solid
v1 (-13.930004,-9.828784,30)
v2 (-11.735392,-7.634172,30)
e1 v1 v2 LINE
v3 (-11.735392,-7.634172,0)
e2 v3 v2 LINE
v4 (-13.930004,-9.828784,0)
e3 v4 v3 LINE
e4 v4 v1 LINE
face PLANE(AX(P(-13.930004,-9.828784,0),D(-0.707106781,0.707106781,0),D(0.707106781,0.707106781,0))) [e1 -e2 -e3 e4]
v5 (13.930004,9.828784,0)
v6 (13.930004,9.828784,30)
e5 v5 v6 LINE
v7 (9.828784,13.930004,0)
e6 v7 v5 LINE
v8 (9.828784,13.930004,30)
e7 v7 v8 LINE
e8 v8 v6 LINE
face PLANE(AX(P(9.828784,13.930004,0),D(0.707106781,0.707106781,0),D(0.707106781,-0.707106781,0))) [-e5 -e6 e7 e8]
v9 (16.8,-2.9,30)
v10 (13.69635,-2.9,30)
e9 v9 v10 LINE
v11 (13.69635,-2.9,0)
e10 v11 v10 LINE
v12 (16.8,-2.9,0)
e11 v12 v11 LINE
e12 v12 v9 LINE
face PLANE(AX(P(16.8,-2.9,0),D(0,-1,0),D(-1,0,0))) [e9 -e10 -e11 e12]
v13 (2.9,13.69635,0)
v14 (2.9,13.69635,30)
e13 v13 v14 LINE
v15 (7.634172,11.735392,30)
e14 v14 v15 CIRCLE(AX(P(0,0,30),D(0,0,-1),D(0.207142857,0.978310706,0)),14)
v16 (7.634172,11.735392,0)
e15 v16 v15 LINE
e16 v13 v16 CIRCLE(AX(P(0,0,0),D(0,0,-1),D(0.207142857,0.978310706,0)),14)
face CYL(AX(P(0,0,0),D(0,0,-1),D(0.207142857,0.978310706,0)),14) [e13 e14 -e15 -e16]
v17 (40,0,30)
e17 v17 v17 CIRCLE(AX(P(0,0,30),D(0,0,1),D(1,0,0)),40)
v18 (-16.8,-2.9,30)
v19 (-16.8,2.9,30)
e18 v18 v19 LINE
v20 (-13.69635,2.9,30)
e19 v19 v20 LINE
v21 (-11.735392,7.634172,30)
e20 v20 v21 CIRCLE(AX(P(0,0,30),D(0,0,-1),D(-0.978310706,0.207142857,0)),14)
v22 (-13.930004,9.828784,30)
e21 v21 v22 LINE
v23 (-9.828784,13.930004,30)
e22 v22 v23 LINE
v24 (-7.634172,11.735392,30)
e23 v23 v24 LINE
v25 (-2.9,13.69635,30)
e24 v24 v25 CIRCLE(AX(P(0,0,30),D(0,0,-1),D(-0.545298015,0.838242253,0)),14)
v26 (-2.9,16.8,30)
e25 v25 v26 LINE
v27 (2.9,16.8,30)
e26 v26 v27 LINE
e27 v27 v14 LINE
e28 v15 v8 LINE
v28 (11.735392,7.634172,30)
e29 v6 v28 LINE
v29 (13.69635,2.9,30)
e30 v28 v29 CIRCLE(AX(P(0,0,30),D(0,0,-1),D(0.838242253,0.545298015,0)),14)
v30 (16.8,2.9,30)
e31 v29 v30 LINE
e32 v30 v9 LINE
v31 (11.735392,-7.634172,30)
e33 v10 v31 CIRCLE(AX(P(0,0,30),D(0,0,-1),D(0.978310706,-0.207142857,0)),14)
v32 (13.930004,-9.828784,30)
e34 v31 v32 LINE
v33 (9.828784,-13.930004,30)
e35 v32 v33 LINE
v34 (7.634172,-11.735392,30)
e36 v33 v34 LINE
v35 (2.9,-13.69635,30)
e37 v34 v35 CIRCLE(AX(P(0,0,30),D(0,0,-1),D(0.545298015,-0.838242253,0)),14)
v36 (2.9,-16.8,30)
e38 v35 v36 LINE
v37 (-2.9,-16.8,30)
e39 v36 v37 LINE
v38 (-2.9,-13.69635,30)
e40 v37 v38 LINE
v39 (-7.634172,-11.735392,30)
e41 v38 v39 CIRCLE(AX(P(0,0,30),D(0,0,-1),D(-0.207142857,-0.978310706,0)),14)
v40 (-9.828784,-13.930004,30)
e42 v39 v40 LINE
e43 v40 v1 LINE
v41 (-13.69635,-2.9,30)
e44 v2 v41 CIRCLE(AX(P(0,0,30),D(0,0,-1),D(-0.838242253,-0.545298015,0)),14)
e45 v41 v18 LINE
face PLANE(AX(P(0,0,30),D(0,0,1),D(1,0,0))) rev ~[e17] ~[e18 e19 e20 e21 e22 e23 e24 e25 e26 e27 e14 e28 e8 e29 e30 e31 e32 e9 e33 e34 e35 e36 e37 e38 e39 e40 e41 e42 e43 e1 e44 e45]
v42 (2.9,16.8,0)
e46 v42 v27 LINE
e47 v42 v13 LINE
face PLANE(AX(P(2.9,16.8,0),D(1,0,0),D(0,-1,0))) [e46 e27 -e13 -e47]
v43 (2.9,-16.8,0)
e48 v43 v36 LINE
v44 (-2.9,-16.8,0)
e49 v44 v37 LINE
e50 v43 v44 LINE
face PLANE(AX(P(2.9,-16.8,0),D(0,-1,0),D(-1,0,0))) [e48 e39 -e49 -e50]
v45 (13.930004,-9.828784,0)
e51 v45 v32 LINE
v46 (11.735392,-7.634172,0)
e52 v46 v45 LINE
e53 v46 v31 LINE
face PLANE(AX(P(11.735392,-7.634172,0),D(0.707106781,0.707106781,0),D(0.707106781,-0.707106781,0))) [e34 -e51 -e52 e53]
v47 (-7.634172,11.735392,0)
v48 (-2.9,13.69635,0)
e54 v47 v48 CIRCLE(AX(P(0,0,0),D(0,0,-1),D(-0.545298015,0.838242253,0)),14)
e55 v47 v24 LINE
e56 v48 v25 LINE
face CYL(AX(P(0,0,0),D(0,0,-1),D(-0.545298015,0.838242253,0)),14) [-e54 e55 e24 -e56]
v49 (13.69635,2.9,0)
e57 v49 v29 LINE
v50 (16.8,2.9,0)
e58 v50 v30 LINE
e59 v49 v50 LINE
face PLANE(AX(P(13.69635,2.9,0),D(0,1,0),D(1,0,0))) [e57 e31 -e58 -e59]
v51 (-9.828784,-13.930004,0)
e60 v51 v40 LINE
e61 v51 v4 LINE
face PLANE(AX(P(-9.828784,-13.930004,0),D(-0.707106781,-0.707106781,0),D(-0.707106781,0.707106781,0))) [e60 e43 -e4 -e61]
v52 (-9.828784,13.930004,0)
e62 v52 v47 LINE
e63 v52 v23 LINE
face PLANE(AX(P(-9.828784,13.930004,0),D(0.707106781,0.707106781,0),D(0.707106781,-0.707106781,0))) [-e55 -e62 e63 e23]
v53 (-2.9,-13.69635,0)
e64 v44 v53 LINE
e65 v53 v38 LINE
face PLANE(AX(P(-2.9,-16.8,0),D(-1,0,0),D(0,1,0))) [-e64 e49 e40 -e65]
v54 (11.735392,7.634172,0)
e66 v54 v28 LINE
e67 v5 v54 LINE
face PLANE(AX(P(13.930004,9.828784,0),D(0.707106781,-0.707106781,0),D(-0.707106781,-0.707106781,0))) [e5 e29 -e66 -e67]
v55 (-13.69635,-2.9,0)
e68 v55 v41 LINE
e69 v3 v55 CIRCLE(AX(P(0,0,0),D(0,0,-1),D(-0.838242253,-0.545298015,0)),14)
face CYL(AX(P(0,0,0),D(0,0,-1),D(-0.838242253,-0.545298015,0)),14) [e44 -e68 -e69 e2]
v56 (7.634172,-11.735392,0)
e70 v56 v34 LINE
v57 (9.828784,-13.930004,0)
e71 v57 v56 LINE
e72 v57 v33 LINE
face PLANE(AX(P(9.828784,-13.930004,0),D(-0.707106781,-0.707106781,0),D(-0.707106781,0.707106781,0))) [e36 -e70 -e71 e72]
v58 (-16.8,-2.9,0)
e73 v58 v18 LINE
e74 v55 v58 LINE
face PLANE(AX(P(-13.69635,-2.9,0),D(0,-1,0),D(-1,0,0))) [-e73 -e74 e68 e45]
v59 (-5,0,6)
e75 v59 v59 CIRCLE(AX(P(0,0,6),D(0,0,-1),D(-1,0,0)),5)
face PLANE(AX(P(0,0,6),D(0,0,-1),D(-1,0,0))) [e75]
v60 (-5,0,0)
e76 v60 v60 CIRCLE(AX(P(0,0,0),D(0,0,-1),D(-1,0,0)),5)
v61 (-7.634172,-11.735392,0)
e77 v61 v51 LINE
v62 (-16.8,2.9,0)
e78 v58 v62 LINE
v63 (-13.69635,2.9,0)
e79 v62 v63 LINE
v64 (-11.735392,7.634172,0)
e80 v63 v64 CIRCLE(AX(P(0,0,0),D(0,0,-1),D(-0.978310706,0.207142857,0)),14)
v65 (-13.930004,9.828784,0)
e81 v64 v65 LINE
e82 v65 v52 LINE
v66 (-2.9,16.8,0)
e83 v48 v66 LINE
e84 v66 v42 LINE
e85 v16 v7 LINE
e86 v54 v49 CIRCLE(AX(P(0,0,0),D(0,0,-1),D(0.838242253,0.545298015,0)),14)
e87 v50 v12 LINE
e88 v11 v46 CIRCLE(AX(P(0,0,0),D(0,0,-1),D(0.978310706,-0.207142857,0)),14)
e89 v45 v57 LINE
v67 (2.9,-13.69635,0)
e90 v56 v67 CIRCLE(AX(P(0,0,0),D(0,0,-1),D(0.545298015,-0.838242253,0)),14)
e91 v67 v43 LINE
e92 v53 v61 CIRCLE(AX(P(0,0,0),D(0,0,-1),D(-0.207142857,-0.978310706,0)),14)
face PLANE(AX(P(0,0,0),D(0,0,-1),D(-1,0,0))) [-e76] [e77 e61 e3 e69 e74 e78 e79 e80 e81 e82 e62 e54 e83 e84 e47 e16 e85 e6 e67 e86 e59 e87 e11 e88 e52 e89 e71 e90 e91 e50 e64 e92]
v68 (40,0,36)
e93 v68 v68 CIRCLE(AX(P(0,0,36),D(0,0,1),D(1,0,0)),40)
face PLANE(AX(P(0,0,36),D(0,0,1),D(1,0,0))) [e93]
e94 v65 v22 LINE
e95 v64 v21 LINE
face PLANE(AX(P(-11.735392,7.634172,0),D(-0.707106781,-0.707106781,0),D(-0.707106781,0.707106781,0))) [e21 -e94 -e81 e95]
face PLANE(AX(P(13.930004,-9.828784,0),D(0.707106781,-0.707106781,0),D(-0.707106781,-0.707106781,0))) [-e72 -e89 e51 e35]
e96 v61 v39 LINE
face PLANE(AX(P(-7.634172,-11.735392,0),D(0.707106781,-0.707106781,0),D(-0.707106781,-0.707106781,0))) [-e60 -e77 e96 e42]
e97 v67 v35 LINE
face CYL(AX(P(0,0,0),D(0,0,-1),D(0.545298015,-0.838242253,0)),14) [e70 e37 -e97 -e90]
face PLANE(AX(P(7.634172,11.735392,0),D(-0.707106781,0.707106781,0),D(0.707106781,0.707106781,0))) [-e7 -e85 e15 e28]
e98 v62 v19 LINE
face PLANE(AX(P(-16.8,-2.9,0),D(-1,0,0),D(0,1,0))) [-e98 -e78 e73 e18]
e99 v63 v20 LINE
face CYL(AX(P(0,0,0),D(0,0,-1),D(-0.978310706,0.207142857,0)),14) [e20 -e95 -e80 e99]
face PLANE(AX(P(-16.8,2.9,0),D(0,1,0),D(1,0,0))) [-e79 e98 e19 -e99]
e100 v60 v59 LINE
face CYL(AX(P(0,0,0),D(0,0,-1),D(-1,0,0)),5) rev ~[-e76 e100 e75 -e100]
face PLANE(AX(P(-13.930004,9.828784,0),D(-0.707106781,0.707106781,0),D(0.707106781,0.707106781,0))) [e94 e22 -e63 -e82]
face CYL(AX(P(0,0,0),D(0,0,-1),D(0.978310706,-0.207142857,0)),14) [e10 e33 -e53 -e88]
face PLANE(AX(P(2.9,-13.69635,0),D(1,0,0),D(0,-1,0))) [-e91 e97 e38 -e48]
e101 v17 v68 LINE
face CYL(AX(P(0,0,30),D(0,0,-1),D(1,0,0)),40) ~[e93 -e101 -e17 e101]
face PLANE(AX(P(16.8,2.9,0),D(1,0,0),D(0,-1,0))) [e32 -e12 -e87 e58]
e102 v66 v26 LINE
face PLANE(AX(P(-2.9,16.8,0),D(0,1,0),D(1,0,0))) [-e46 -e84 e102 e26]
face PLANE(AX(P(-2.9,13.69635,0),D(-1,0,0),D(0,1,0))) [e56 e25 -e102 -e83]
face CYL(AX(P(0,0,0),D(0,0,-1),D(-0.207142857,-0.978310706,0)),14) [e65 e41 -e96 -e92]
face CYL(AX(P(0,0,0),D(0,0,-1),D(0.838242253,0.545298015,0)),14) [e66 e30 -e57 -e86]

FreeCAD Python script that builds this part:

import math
import FreeCAD as App
import Part
import Sketcher

doc = App.newDocument("Part")
body = doc.addObject("PartDesign::Body", "Body")

sketch1 = doc.addObject("Sketcher::SketchObject", "Sketch")
body.addObject(sketch1)
sketch1.AttachmentSupport = (doc.XY_Plane, [""])
sketch1.MapMode = "FlatFace"
sketch1.addGeometry([
    Part.LineSegment(App.Vector(-2.9, 16.8, 0), App.Vector(-2.9, 13.7, 0)),
    Part.ArcOfCircle(Part.Circle(App.Vector(0, 0, 0), App.Vector(0, 0, 1), 14), math.radians(102), math.radians(123)),
    Part.LineSegment(App.Vector(-7.6, 11.7, 0), App.Vector(-9.8, 13.9, 0)),
    Part.LineSegment(App.Vector(-9.8, 13.9, 0), App.Vector(-13.9, 9.8, 0)),
    Part.LineSegment(App.Vector(-13.9, 9.8, 0), App.Vector(-11.7, 7.6, 0)),
    Part.ArcOfCircle(Part.Circle(App.Vector(0, 0, 0), App.Vector(0, 0, 1), 14), math.radians(147), math.radians(168)),
    Part.LineSegment(App.Vector(-13.7, 2.9, 0), App.Vector(-16.8, 2.9, 0)),
    Part.LineSegment(App.Vector(-16.8, 2.9, 0), App.Vector(-16.8, -2.9, 0)),
    Part.LineSegment(App.Vector(-16.8, -2.9, 0), App.Vector(-13.7, -2.9, 0)),
    Part.ArcOfCircle(Part.Circle(App.Vector(0, 0, 0), App.Vector(0, 0, 1), 14), math.radians(-168), math.radians(-147)),
    Part.LineSegment(App.Vector(-11.7, -7.6, 0), App.Vector(-13.9, -9.8, 0)),
    Part.LineSegment(App.Vector(-13.9, -9.8, 0), App.Vector(-9.8, -13.9, 0)),
    Part.LineSegment(App.Vector(-9.8, -13.9, 0), App.Vector(-7.6, -11.7, 0)),
    Part.ArcOfCircle(Part.Circle(App.Vector(0, 0, 0), App.Vector(0, 0, 1), 14), math.radians(-123), math.radians(-102)),
    Part.LineSegment(App.Vector(-2.9, -13.7, 0), App.Vector(-2.9, -16.8, 0)),
    Part.LineSegment(App.Vector(-2.9, -16.8, 0), App.Vector(2.9, -16.8, 0)),
    Part.LineSegment(App.Vector(2.9, -16.8, 0), App.Vector(2.9, -13.7, 0)),
    Part.ArcOfCircle(Part.Circle(App.Vector(0, 0, 0), App.Vector(0, 0, 1), 14), math.radians(-78), math.radians(-57)),
    Part.LineSegment(App.Vector(7.6, -11.7, 0), App.Vector(9.8, -13.9, 0)),
    Part.LineSegment(App.Vector(9.8, -13.9, 0), App.Vector(13.9, -9.8, 0)),
    Part.LineSegment(App.Vector(13.9, -9.8, 0), App.Vector(11.7, -7.6, 0)),
    Part.ArcOfCircle(Part.Circle(App.Vector(0, 0, 0), App.Vector(0, 0, 1), 14), math.radians(-33), math.radians(-12)),
    Part.LineSegment(App.Vector(13.7, -2.9, 0), App.Vector(16.8, -2.9, 0)),
    Part.LineSegment(App.Vector(16.8, -2.9, 0), App.Vector(16.8, 2.9, 0)),
    Part.LineSegment(App.Vector(16.8, 2.9, 0), App.Vector(13.7, 2.9, 0)),
    Part.ArcOfCircle(Part.Circle(App.Vector(0, 0, 0), App.Vector(0, 0, 1), 14), math.radians(12), math.radians(33)),
    Part.LineSegment(App.Vector(11.7, 7.6, 0), App.Vector(13.9, 9.8, 0)),
    Part.LineSegment(App.Vector(13.9, 9.8, 0), App.Vector(9.8, 13.9, 0)),
    Part.LineSegment(App.Vector(9.8, 13.9, 0), App.Vector(7.6, 11.7, 0)),
    Part.ArcOfCircle(Part.Circle(App.Vector(0, 0, 0), App.Vector(0, 0, 1), 14), math.radians(57), math.radians(78)),
    Part.LineSegment(App.Vector(2.9, 13.7, 0), App.Vector(2.9, 16.8, 0)),
    Part.LineSegment(App.Vector(2.9, 16.8, 0), App.Vector(-2.9, 16.8, 0)),
], False)
sketch1.addConstraint([
    Sketcher.Constraint("Coincident", 0, 2, 1, 1),
    Sketcher.Constraint("Coincident", 1, 2, 2, 1),
    Sketcher.Constraint("Coincident", 2, 2, 3, 1),
    Sketcher.Constraint("Coincident", 3, 2, 4, 1),
    Sketcher.Constraint("Coincident", 4, 2, 5, 1),
    Sketcher.Constraint("Coincident", 5, 2, 6, 1),
    Sketcher.Constraint("Coincident", 6, 2, 7, 1),
    Sketcher.Constraint("Coincident", 7, 2, 8, 1),
    Sketcher.Constraint("Coincident", 8, 2, 9, 1),
    Sketcher.Constraint("Coincident", 9, 2, 10, 1),
    Sketcher.Constraint("Coincident", 10, 2, 11, 1),
    Sketcher.Constraint("Coincident", 11, 2, 12, 1),
    Sketcher.Constraint("Coincident", 12, 2, 13, 1),
    Sketcher.Constraint("Coincident", 13, 2, 14, 1),
    Sketcher.Constraint("Coincident", 14, 2, 15, 1),
    Sketcher.Constraint("Coincident", 15, 2, 16, 1),
    Sketcher.Constraint("Coincident", 16, 2, 17, 1),
    Sketcher.Constraint("Coincident", 17, 2, 18, 1),
    Sketcher.Constraint("Coincident", 18, 2, 19, 1),
    Sketcher.Constraint("Coincident", 19, 2, 20, 1),
    Sketcher.Constraint("Coincident", 20, 2, 21, 1),
    Sketcher.Constraint("Coincident", 21, 2, 22, 1),
    Sketcher.Constraint("Coincident", 22, 2, 23, 1),
    Sketcher.Constraint("Coincident", 23, 2, 24, 1),
    Sketcher.Constraint("Coincident", 24, 2, 25, 1),
    Sketcher.Constraint("Coincident", 25, 2, 26, 1),
    Sketcher.Constraint("Coincident", 26, 2, 27, 1),
    Sketcher.Constraint("Coincident", 27, 2, 28, 1),
    Sketcher.Constraint("Coincident", 28, 2, 29, 1),
    Sketcher.Constraint("Coincident", 29, 2, 30, 1),
    Sketcher.Constraint("Coincident", 30, 2, 31, 1),
    Sketcher.Constraint("Coincident", 31, 2, 0, 1),
    Sketcher.Constraint("Vertical", 0),
    Sketcher.Constraint("Horizontal", 6),
    Sketcher.Constraint("Vertical", 7),
    Sketcher.Constraint("Horizontal", 8),
    Sketcher.Constraint("Vertical", 14),
    Sketcher.Constraint("Horizontal", 15),
    Sketcher.Constraint("Vertical", 16),
    Sketcher.Constraint("Horizontal", 22),
    Sketcher.Constraint("Vertical", 23),
    Sketcher.Constraint("Horizontal", 24),
    Sketcher.Constraint("Vertical", 30),
    Sketcher.Constraint("Horizontal", 31),
    Sketcher.Constraint("Coincident", 1, 3, -1, 1),
    Sketcher.Constraint("Coincident", 5, 3, -1, 1),
    Sketcher.Constraint("Coincident", 9, 3, -1, 1),
    Sketcher.Constraint("Coincident", 13, 3, -1, 1),
    Sketcher.Constraint("Coincident", 17, 3, -1, 1),
    Sketcher.Constraint("Coincident", 21, 3, -1, 1),
    Sketcher.Constraint("Coincident", 25, 3, -1, 1),
    Sketcher.Constraint("Coincident", 29, 3, -1, 1),
    Sketcher.Constraint("Equal", 1, 5),
    Sketcher.Constraint("Equal", 5, 9),
    Sketcher.Constraint("Equal", 9, 13),
    Sketcher.Constraint("Equal", 13, 17),
    Sketcher.Constraint("Equal", 17, 21),
    Sketcher.Constraint("Equal", 21, 25),
    Sketcher.Constraint("Equal", 25, 29),
    Sketcher.Constraint("Symmetric", 2, 2, 18, 2, -1, 1),
    Sketcher.Constraint("Symmetric", 3, 2, 19, 2, -1, 1),
    Sketcher.Constraint("Symmetric", 6, 2, 22, 2, -1, 1),
    Sketcher.Constraint("Symmetric", 10, 2, 26, 2, -1, 1),
    Sketcher.Constraint("Symmetric", 11, 2, 27, 2, -1, 1),
    Sketcher.Constraint("Symmetric", 14, 2, 30, 2, -1, 1),
    Sketcher.Constraint("Symmetric", 11, 2, 18, 2, -2),
    Sketcher.Constraint("Symmetric", 10, 2, 19, 2, -2),
    Sketcher.Constraint("Perpendicular", 2, 3),
    Sketcher.Constraint("Perpendicular", 3, 4),
    Sketcher.Constraint("Perpendicular", 4, 10),
    Sketcher.Constraint("Perpendicular", 10, 11),
    Sketcher.Constraint("Perpendicular", 11, 12),
    Sketcher.Constraint("Perpendicular", 12, 18),
    Sketcher.Constraint("Perpendicular", 19, 20),
    Sketcher.Constraint("Perpendicular", 20, 26),
    Sketcher.Constraint("Perpendicular", 27, 28),
    Sketcher.Constraint("Horizontal", 13, 2, 16, 2),
    Sketcher.Constraint("Horizontal", 8, 2, 21, 2),
    Sketcher.Constraint("Horizontal", 6, 2, 23, 2),
    Sketcher.Constraint("Horizontal", 0, 2, 29, 2),
    Sketcher.Constraint("Equal", 24, 0),
    Sketcher.Constraint("Equal", 31, 7),
    Sketcher.Constraint("Equal", 2, 4),
    Sketcher.Constraint("Radius", 1, 14.0),
    Sketcher.Constraint("DistanceX", 15, 1, 15, 2, 5.8),
    Sketcher.Constraint("Distance", 3, 5.8),
    Sketcher.Constraint("DistanceX", 6, 2, -1, 1, 16.8),
    Sketcher.Constraint("Distance", 2, 3.10365),
])
pad1 = doc.addObject("PartDesign::Pad", "Pad")
body.addObject(pad1)
pad1.Profile = sketch1
pad1.Length = 30

sketch2 = doc.addObject("Sketcher::SketchObject", "Sketch001")
body.addObject(sketch2)
sketch2.AttachmentSupport = (doc.XY_Plane, [""])
sketch2.MapMode = "FlatFace"
sketch2.addGeometry(Part.Circle(App.Vector(0, 0, 0), App.Vector(0, 0, 1), 5), False)
sketch2.addConstraint([
    Sketcher.Constraint("Coincident", 0, 3, -1, 1),
    Sketcher.Constraint("Diameter", 0, 10.0),
])
pocket1 = doc.addObject("PartDesign::Pocket", "Pocket")
body.addObject(pocket1)
pocket1.Profile = sketch2
pocket1.Length = 6
pocket1.Reversed = True

sketch3 = doc.addObject("Sketcher::SketchObject", "Sketch002")
body.addObject(sketch3)
sketch3.AttachmentSupport = (doc.XY_Plane, [""])
sketch3.MapMode = "FlatFace"
sketch3.AttachmentOffset = App.Placement(App.Vector(0, 0, 30), App.Rotation())
sketch3.addGeometry(Part.Circle(App.Vector(0, 0, 0), App.Vector(0, 0, 1), 40), False)
sketch3.addConstraint([
    Sketcher.Constraint("Coincident", 0, 3, -1, 1),
    Sketcher.Constraint("Diameter", 0, 80.0),
])
pad2 = doc.addObject("PartDesign::Pad", "Pad001")
body.addObject(pad2)
pad2.Profile = sketch3
pad2.Length = 6

doc.recompute()
